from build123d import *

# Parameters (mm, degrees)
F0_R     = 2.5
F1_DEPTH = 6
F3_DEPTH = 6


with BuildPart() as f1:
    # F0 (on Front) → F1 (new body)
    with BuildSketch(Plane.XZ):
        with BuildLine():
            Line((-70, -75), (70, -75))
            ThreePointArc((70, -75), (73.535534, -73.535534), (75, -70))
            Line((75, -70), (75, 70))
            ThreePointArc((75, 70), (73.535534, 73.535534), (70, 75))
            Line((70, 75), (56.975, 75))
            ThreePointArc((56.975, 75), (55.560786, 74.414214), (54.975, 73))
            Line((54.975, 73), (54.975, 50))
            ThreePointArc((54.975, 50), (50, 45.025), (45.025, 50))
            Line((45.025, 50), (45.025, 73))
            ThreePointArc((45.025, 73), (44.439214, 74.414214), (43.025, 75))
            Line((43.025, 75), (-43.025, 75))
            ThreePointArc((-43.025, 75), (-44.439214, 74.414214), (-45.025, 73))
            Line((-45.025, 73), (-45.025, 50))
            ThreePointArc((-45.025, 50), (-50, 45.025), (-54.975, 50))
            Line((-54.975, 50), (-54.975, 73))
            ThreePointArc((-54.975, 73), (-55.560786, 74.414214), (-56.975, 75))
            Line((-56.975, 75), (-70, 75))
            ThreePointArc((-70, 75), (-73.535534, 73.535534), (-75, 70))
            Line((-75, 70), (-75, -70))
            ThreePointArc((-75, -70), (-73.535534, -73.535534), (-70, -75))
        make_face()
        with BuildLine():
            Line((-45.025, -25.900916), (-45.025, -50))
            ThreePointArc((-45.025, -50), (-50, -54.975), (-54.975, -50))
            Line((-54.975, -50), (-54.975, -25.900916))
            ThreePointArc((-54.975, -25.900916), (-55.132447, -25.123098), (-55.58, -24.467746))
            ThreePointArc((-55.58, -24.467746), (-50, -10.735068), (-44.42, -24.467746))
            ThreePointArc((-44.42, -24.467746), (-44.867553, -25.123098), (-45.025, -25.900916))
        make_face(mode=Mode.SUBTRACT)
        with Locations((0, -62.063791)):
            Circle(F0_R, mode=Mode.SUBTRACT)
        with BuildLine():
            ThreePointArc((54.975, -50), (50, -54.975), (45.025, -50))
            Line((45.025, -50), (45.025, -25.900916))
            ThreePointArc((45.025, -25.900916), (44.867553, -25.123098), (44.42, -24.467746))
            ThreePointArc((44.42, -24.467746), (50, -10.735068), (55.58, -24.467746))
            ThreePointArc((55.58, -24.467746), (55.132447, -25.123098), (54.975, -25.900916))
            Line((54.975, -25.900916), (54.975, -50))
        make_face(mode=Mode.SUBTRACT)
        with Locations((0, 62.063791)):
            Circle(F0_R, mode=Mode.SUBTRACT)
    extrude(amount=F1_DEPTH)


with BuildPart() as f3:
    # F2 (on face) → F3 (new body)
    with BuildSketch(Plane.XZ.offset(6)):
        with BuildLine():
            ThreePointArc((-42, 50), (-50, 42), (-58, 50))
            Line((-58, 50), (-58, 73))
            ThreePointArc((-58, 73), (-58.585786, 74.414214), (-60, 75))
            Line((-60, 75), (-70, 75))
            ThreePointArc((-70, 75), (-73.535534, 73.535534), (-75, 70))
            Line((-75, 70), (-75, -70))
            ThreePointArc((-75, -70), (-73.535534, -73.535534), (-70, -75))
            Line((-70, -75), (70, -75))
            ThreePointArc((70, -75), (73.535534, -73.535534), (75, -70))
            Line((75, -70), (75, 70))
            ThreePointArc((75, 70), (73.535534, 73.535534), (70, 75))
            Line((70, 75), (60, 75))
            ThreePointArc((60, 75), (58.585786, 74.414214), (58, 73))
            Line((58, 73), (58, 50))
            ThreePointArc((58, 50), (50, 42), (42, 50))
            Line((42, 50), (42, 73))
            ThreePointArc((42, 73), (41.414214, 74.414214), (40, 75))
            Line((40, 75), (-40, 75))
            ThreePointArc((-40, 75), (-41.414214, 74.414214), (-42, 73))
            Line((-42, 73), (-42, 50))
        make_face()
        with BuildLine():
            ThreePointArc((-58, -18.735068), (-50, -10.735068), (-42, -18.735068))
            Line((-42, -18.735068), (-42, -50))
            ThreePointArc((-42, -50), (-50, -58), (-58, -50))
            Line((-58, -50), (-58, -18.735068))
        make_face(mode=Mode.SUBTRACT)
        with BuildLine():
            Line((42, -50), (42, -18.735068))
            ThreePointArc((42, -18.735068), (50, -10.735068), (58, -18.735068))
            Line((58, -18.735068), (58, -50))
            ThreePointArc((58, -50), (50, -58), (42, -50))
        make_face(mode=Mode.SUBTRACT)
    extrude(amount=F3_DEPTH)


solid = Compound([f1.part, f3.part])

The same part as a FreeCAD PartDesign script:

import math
import FreeCAD as App
import Part
import Sketcher
Q = App.Units.Quantity

doc = App.newDocument("Part")
params = doc.addObject("Spreadsheet::Sheet", "Params")
for row, (alias, value) in enumerate([
    ("sketch1_diameter", "5 mm"),
    ("sketch1_radius", "5 mm"),
    ("sketch1_radius2", "1.999999 mm"),
    ("sketch1_radius3", "8 mm"),
    ("sketch1_width", "140 mm"),
    ("pad1_length", "6 mm"),
    ("sketch2_radius", "8 mm"),
    ("sketch2_radius2", "1.999999 mm"),
    ("sketch2_radius3", "5 mm"),
    ("sketch2_width", "10 mm"),
    ("sketch2_width2", "140 mm"),
    ("pad2_length", "6 mm"),
], start=1):
    params.set(f"A{row}", alias)
    params.set(f"B{row}", "=" + value)
    params.setAlias(f"B{row}", alias)

body = doc.addObject("PartDesign::Body", "Body")

# Sketch on XZ plane
sketch1 = body.newObject("Sketcher::SketchObject", "Sketch")
sketch1.AttachmentSupport = (doc.getObject("XZ_Plane"), [""])
sketch1.MapMode = "FlatFace"
sketch1.addGeometry(Part.LineSegment(App.Vector(-70, -75, 0), App.Vector(70, -75, 0)), False)
sketch1.addGeometry(Part.ArcOfCircle(Part.Circle(App.Vector(70, -70, 0), App.Vector(0, 0, 1), 5), math.radians(-90.000004), math.radians(0.000004)), False)
sketch1.addGeometry(Part.LineSegment(App.Vector(75, -70, 0), App.Vector(75, 70, 0)), False)
sketch1.addGeometry(Part.ArcOfCircle(Part.Circle(App.Vector(70, 70, 0), App.Vector(0, 0, 1), 5), math.radians(-0.000004), math.radians(90.000004)), False)
sketch1.addGeometry(Part.LineSegment(App.Vector(70, 75, 0), App.Vector(56.975, 75, 0)), False)
sketch1.addGeometry(Part.ArcOfCircle(Part.Circle(App.Vector(56.974999, 73.000001, 0), App.Vector(0, 0, 1), 1.999999), math.radians(89.999957), math.radians(180.000043)), False)
sketch1.addGeometry(Part.LineSegment(App.Vector(54.975, 73, 0), App.Vector(54.975, 50, 0)), False)
sketch1.addGeometry(Part.ArcOfCircle(Part.Circle(App.Vector(50, 50, 0), App.Vector(0, 0, 1), 4.975), math.radians(180), math.radians(360)), False)
sketch1.addGeometry(Part.LineSegment(App.Vector(45.025, 50, 0), App.Vector(45.025, 73, 0)), False)
sketch1.addGeometry(Part.ArcOfCircle(Part.Circle(App.Vector(43.025001, 73.000001, 0), App.Vector(0, 0, 1), 1.999999), math.radians(-0.000043), math.radians(90.000043)), False)
sketch1.addGeometry(Part.LineSegment(App.Vector(43.025, 75, 0), App.Vector(-43.025, 75, 0)), False)
sketch1.addGeometry(Part.ArcOfCircle(Part.Circle(App.Vector(-43.025001, 73.000001, 0), App.Vector(0, 0, 1), 1.999999), math.radians(89.999957), math.radians(180.000043)), False)
sketch1.addGeometry(Part.LineSegment(App.Vector(-45.025, 73, 0), App.Vector(-45.025, 50, 0)), False)
sketch1.addGeometry(Part.ArcOfCircle(Part.Circle(App.Vector(-50, 50, 0), App.Vector(0, 0, 1), 4.975), math.radians(180), math.radians(360)), False)
sketch1.addGeometry(Part.LineSegment(App.Vector(-54.975, 50, 0), App.Vector(-54.975, 73, 0)), False)
sketch1.addGeometry(Part.ArcOfCircle(Part.Circle(App.Vector(-56.974999, 73.000001, 0), App.Vector(0, 0, 1), 1.999999), math.radians(-0.000043), math.radians(90.000043)), False)
sketch1.addGeometry(Part.LineSegment(App.Vector(-56.975, 75, 0), App.Vector(-70, 75, 0)), False)
sketch1.addGeometry(Part.ArcOfCircle(Part.Circle(App.Vector(-70, 70, 0), App.Vector(0, 0, 1), 5), math.radians(89.999996), math.radians(180.000004)), False)
sketch1.addGeometry(Part.LineSegment(App.Vector(-75, 70, 0), App.Vector(-75, -70, 0)), False)
sketch1.addGeometry(Part.ArcOfCircle(Part.Circle(App.Vector(-70, -70, 0), App.Vector(0, 0, 1), 5), math.radians(179.999996), math.radians(270.000004)), False)
sketch1.addGeometry(Part.ArcOfCircle(Part.Circle(App.Vector(-43.025005, -25.900913, 0), App.Vector(0, 0, 1), 1.999995), math.radians(134.22671), math.radians(180.000073)), False)
sketch1.addGeometry(Part.LineSegment(App.Vector(-45.025, -25.900916, 0), App.Vector(-45.025, -50, 0)), False)
sketch1.addGeometry(Part.ArcOfCircle(Part.Circle(App.Vector(-50, -50, 0), App.Vector(0, 0, 1), 4.975), math.radians(180), math.radians(360)), False)
sketch1.addGeometry(Part.LineSegment(App.Vector(-54.975, -50, 0), App.Vector(-54.975, -25.900916, 0)), False)
sketch1.addGeometry(Part.ArcOfCircle(Part.Circle(App.Vector(-56.974995, -25.900913, 0), App.Vector(0, 0, 1), 1.999995), math.radians(-0.000073), math.radians(45.77329)), False)
sketch1.addGeometry(Part.ArcOfCircle(Part.Circle(App.Vector(-50, -18.735068, 0), App.Vector(0, 0, 1), 8), math.radians(-45.773228), math.radians(225.773228)), False)
sketch1.addGeometry(Part.Circle(App.Vector(0, -62.063791, 0), App.Vector(0, 0, 1), 2.5), False)
sketch1.addGeometry(Part.LineSegment(App.Vector(54.975, -25.900916, 0), App.Vector(54.975, -50, 0)), False)
sketch1.addGeometry(Part.ArcOfCircle(Part.Circle(App.Vector(50, -50, 0), App.Vector(0, 0, 1), 4.975), math.radians(180), math.radians(360)), False)
sketch1.addGeometry(Part.LineSegment(App.Vector(45.025, -50, 0), App.Vector(45.025, -25.900916, 0)), False)
sketch1.addGeometry(Part.ArcOfCircle(Part.Circle(App.Vector(43.025005, -25.900913, 0), App.Vector(0, 0, 1), 1.999995), math.radians(-0.000073), math.radians(45.77329)), False)
sketch1.addGeometry(Part.ArcOfCircle(Part.Circle(App.Vector(50, -18.735068, 0), App.Vector(0, 0, 1), 8), math.radians(-45.773228), math.radians(225.773228)), False)
sketch1.addGeometry(Part.ArcOfCircle(Part.Circle(App.Vector(56.974995, -25.900913, 0), App.Vector(0, 0, 1), 1.999995), math.radians(134.22671), math.radians(180.000073)), False)
sketch1.addGeometry(Part.Circle(App.Vector(0, 62.063791, 0), App.Vector(0, 0, 1), 2.5), False)
sketch1.addConstraint(Sketcher.Constraint("Tangent", 0, 2, 1, 1))
sketch1.addConstraint(Sketcher.Constraint("Tangent", 1, 2, 2, 1))
sketch1.addConstraint(Sketcher.Constraint("Tangent", 2, 2, 3, 1))
sketch1.addConstraint(Sketcher.Constraint("Tangent", 3, 2, 4, 1))
sketch1.addConstraint(Sketcher.Constraint("Tangent", 4, 2, 5, 1))
sketch1.addConstraint(Sketcher.Constraint("Tangent", 5, 2, 6, 1))
sketch1.addConstraint(Sketcher.Constraint("Tangent", 6, 2, 7, 2))
sketch1.addConstraint(Sketcher.Constraint("Tangent", 7, 1, 8, 1))
sketch1.addConstraint(Sketcher.Constraint("Tangent", 8, 2, 9, 1))
sketch1.addConstraint(Sketcher.Constraint("Tangent", 9, 2, 10, 1))
sketch1.addConstraint(Sketcher.Constraint("Tangent", 10, 2, 11, 1))
sketch1.addConstraint(Sketcher.Constraint("Tangent", 11, 2, 12, 1))
sketch1.addConstraint(Sketcher.Constraint("Tangent", 12, 2, 13, 2))
sketch1.addConstraint(Sketcher.Constraint("Tangent", 13, 1, 14, 1))
sketch1.addConstraint(Sketcher.Constraint("Tangent", 14, 2, 15, 1))
sketch1.addConstraint(Sketcher.Constraint("Tangent", 15, 2, 16, 1))
sketch1.addConstraint(Sketcher.Constraint("Tangent", 16, 2, 17, 1))
sketch1.addConstraint(Sketcher.Constraint("Tangent", 17, 2, 18, 1))
sketch1.addConstraint(Sketcher.Constraint("Tangent", 18, 2, 19, 1))
sketch1.addConstraint(Sketcher.Constraint("Tangent", 19, 2, 0, 1))
sketch1.addConstraint(Sketcher.Constraint("Tangent", 20, 2, 21, 1))
sketch1.addConstraint(Sketcher.Constraint("Tangent", 21, 2, 22, 2))
sketch1.addConstraint(Sketcher.Constraint("Tangent", 22, 1, 23, 1))
sketch1.addConstraint(Sketcher.Constraint("Tangent", 23, 2, 24, 1))
sketch1.addConstraint(Sketcher.Constraint("Tangent", 24, 2, 25, 2))
sketch1.addConstraint(Sketcher.Constraint("Tangent", 25, 1, 20, 1))
sketch1.addConstraint(Sketcher.Constraint("Tangent", 27, 2, 28, 2))
sketch1.addConstraint(Sketcher.Constraint("Tangent", 28, 1, 29, 1))
sketch1.addConstraint(Sketcher.Constraint("Tangent", 29, 2, 30, 1))
sketch1.addConstraint(Sketcher.Constraint("Tangent", 30, 2, 31, 2))
sketch1.addConstraint(Sketcher.Constraint("Tangent", 31, 1, 32, 1))
sketch1.addConstraint(Sketcher.Constraint("Tangent", 32, 2, 27, 1))
sketch1.addConstraint(Sketcher.Constraint("Horizontal", 0))
sketch1.addConstraint(Sketcher.Constraint("Vertical", 2))
sketch1.addConstraint(Sketcher.Constraint("Horizontal", 4))
sketch1.addConstraint(Sketcher.Constraint("Vertical", 6))
sketch1.addConstraint(Sketcher.Constraint("Vertical", 8))
sketch1.addConstraint(Sketcher.Constraint("Horizontal", 10))
sketch1.addConstraint(Sketcher.Constraint("Vertical", 12))
sketch1.addConstraint(Sketcher.Constraint("Vertical", 14))
sketch1.addConstraint(Sketcher.Constraint("Horizontal", 16))
sketch1.addConstraint(Sketcher.Constraint("Vertical", 18))
sketch1.addConstraint(Sketcher.Constraint("Vertical", 21))
sketch1.addConstraint(Sketcher.Constraint("Vertical", 23))
sketch1.addConstraint(Sketcher.Constraint("Vertical", 27))
sketch1.addConstraint(Sketcher.Constraint("Vertical", 29))
sketch1.addConstraint(Sketcher.Constraint("Equal", 1, 3))
sketch1.addConstraint(Sketcher.Constraint("Equal", 5, 9))
sketch1.addConstraint(Sketcher.Constraint("Equal", 9, 11))
sketch1.addConstraint(Sketcher.Constraint("Equal", 7, 13))
sketch1.addConstraint(Sketcher.Constraint("Equal", 11, 15))
sketch1.addConstraint(Sketcher.Constraint("Equal", 3, 17))
sketch1.addConstraint(Sketcher.Constraint("Equal", 17, 19))
sketch1.addConstraint(Sketcher.Constraint("Equal", 13, 22))
sketch1.addConstraint(Sketcher.Constraint("Equal", 20, 24))
sketch1.addConstraint(Sketcher.Constraint("Equal", 22, 28))
sketch1.addConstraint(Sketcher.Constraint("Equal", 24, 30))
sketch1.addConstraint(Sketcher.Constraint("Equal", 25, 31))
sketch1.addConstraint(Sketcher.Constraint("Equal", 30, 32))
sketch1.addConstraint(Sketcher.Constraint("Equal", 26, 33))
sketch1.addConstraint(Sketcher.Constraint("Symmetric", 1, 3, 17, 3, -1, 1))
sketch1.addConstraint(Sketcher.Constraint("Symmetric", 7, 3, 22, 3, -1, 1))
sketch1.addConstraint(Sketcher.Constraint("Symmetric", 13, 3, 28, 3, -1, 1))
sketch1.addConstraint(Sketcher.Constraint("Symmetric", 26, 3, 33, 3, -1, 1))
sketch1.addConstraint(Sketcher.Constraint("Symmetric", 7, 3, 13, 3, -2))
sketch1.addConstraint(Sketcher.Constraint("Symmetric", 25, 3, 31, 3, -2))
sketch1.addConstraint(Sketcher.Constraint("PointOnObject", 26, 3, -2))
sketch1.addConstraint(Sketcher.Constraint("Horizontal", 5, 3, 9, 3))
sketch1.addConstraint(Sketcher.Constraint("Horizontal", 11, 3, 15, 3))
sketch1.addConstraint(Sketcher.Constraint("Horizontal", 20, 3, 24, 3))
sketch1.addConstraint(Sketcher.Constraint("Equal", 0, 2))
sketch1.addConstraint(Sketcher.Constraint("Diameter", 26, Q("5 mm")))
sketch1.addConstraint(Sketcher.Constraint("Radius", 1, Q("5 mm")))
sketch1.addConstraint(Sketcher.Constraint("Radius", 5, Q("1.999999 mm")))
sketch1.addConstraint(Sketcher.Constraint("Radius", 25, Q("8 mm")))
sketch1.addConstraint(Sketcher.Constraint("DistanceX", 0, 1, 0, 2, Q("140 mm")))
sketch1.addConstraint(Sketcher.Constraint("DistanceY", 6, 2, 6, 1, Q("23 mm")))
sketch1.addConstraint(Sketcher.Constraint("DistanceX", -1, 1, 7, 3, Q("50 mm")))
sketch1.addConstraint(Sketcher.Constraint("Radius", 7, Q("4.975 mm")))
sketch1.addConstraint(Sketcher.Constraint("DistanceX", 24, 2, -1, 1, Q("55.58 mm")))
sketch1.addConstraint(Sketcher.Constraint("DistanceY", 21, 2, 21, 1, Q("24.099084 mm")))
sketch1.addConstraint(Sketcher.Constraint("DistanceY", 26, 3, -1, 1, Q("62.063791 mm")))
sketch1.setExpression("Constraints[71]", "Params.sketch1_diameter")
sketch1.setExpression("Constraints[72]", "Params.sketch1_radius")
sketch1.setExpression("Constraints[73]", "Params.sketch1_radius2")
sketch1.setExpression("Constraints[74]", "Params.sketch1_radius3")
sketch1.setExpression("Constraints[75]", "Params.sketch1_width")
pad1 = body.newObject("PartDesign::Pad", "Pad")
pad1.Profile = sketch1
pad1.setExpression("Length", "Params.pad1_length")
body2 = doc.addObject("PartDesign::Body", "Body001")

# Sketch on XZ plane
sketch2 = body2.newObject("Sketcher::SketchObject", "Sketch001")
sketch2.AttachmentSupport = (doc.getObject("XZ_Plane001"), [""])
sketch2.MapMode = "FlatFace"
sketch2.AttachmentOffset = App.Placement(App.Vector(0, 0, 6), App.Rotation())
sketch2.addGeometry(Part.ArcOfCircle(Part.Circle(App.Vector(-50, 50, 0), App.Vector(0, 0, 1), 8), math.radians(180), math.radians(360)), False)
sketch2.addGeometry(Part.LineSegment(App.Vector(-58, 50, 0), App.Vector(-58, 73, 0)), False)
sketch2.addGeometry(Part.ArcOfCircle(Part.Circle(App.Vector(-59.999999, 73.000001, 0), App.Vector(0, 0, 1), 1.999999), math.radians(-0.000043), math.radians(90.000043)), False)
sketch2.addGeometry(Part.LineSegment(App.Vector(-60, 75, 0), App.Vector(-70, 75, 0)), False)
sketch2.addGeometry(Part.ArcOfCircle(Part.Circle(App.Vector(-70, 70, 0), App.Vector(0, 0, 1), 5), math.radians(89.999996), math.radians(180.000004)), False)
sketch2.addGeometry(Part.LineSegment(App.Vector(-75, 70, 0), App.Vector(-75, -70, 0)), False)
sketch2.addGeometry(Part.ArcOfCircle(Part.Circle(App.Vector(-70, -70, 0), App.Vector(0, 0, 1), 5), math.radians(179.999996), math.radians(270.000004)), False)
sketch2.addGeometry(Part.LineSegment(App.Vector(-70, -75, 0), App.Vector(70, -75, 0)), False)
sketch2.addGeometry(Part.ArcOfCircle(Part.Circle(App.Vector(70, -70, 0), App.Vector(0, 0, 1), 5), math.radians(-90.000004), math.radians(0.000004)), False)
sketch2.addGeometry(Part.LineSegment(App.Vector(75, -70, 0), App.Vector(75, 70, 0)), False)
sketch2.addGeometry(Part.ArcOfCircle(Part.Circle(App.Vector(70, 70, 0), App.Vector(0, 0, 1), 5), math.radians(-0.000004), math.radians(90.000004)), False)
sketch2.addGeometry(Part.LineSegment(App.Vector(70, 75, 0), App.Vector(60, 75, 0)), False)
sketch2.addGeometry(Part.ArcOfCircle(Part.Circle(App.Vector(59.999999, 73.000001, 0), App.Vector(0, 0, 1), 1.999999), math.radians(89.999957), math.radians(180.000043)), False)
sketch2.addGeometry(Part.LineSegment(App.Vector(58, 73, 0), App.Vector(58, 50, 0)), False)
sketch2.addGeometry(Part.ArcOfCircle(Part.Circle(App.Vector(50, 50, 0), App.Vector(0, 0, 1), 8), math.radians(180), math.radians(360)), False)
sketch2.addGeometry(Part.LineSegment(App.Vector(42, 50, 0), App.Vector(42, 73, 0)), False)
sketch2.addGeometry(Part.ArcOfCircle(Part.Circle(App.Vector(40.000001, 73.000001, 0), App.Vector(0, 0, 1), 1.999999), math.radians(-0.000043), math.radians(90.000043)), False)
sketch2.addGeometry(Part.LineSegment(App.Vector(40, 75, 0), App.Vector(-40, 75, 0)), False)
sketch2.addGeometry(Part.ArcOfCircle(Part.Circle(App.Vector(-40.000001, 73.000001, 0), App.Vector(0, 0, 1), 1.999999), math.radians(89.999957), math.radians(180.000043)), False)
sketch2.addGeometry(Part.LineSegment(App.Vector(-42, 73, 0), App.Vector(-42, 50, 0)), False)
sketch2.addGeometry(Part.LineSegment(App.Vector(-58, -50, 0), App.Vector(-58, -18.735068, 0)), False)
sketch2.addGeometry(Part.ArcOfCircle(Part.Circle(App.Vector(-50, -18.735068, 0), App.Vector(0, 0, 1), 8), math.radians(0), math.radians(180)), False)
sketch2.addGeometry(Part.LineSegment(App.Vector(-42, -18.735068, 0), App.Vector(-42, -50, 0)), False)
sketch2.addGeometry(Part.ArcOfCircle(Part.Circle(App.Vector(-50, -50, 0), App.Vector(0, 0, 1), 8), math.radians(180), math.radians(360)), False)
sketch2.addGeometry(Part.ArcOfCircle(Part.Circle(App.Vector(50, -50, 0), App.Vector(0, 0, 1), 8), math.radians(180), math.radians(360)), False)
sketch2.addGeometry(Part.LineSegment(App.Vector(42, -50, 0), App.Vector(42, -18.735068, 0)), False)
sketch2.addGeometry(Part.ArcOfCircle(Part.Circle(App.Vector(50, -18.735068, 0), App.Vector(0, 0, 1), 8), math.radians(0), math.radians(180)), False)
sketch2.addGeometry(Part.LineSegment(App.Vector(58, -18.735068, 0), App.Vector(58, -50, 0)), False)
sketch2.addConstraint(Sketcher.Constraint("Tangent", 0, 1, 1, 1))
sketch2.addConstraint(Sketcher.Constraint("Tangent", 1, 2, 2, 1))
sketch2.addConstraint(Sketcher.Constraint("Tangent", 2, 2, 3, 1))
sketch2.addConstraint(Sketcher.Constraint("Tangent", 3, 2, 4, 1))
sketch2.addConstraint(Sketcher.Constraint("Tangent", 4, 2, 5, 1))
sketch2.addConstraint(Sketcher.Constraint("Tangent", 5, 2, 6, 1))
sketch2.addConstraint(Sketcher.Constraint("Tangent", 6, 2, 7, 1))
sketch2.addConstraint(Sketcher.Constraint("Tangent", 7, 2, 8, 1))
sketch2.addConstraint(Sketcher.Constraint("Tangent", 8, 2, 9, 1))
sketch2.addConstraint(Sketcher.Constraint("Tangent", 9, 2, 10, 1))
sketch2.addConstraint(Sketcher.Constraint("Tangent", 10, 2, 11, 1))
sketch2.addConstraint(Sketcher.Constraint("Tangent", 11, 2, 12, 1))
sketch2.addConstraint(Sketcher.Constraint("Tangent", 12, 2, 13, 1))
sketch2.addConstraint(Sketcher.Constraint("Tangent", 13, 2, 14, 2))
sketch2.addConstraint(Sketcher.Constraint("Tangent", 14, 1, 15, 1))
sketch2.addConstraint(Sketcher.Constraint("Tangent", 15, 2, 16, 1))
sketch2.addConstraint(Sketcher.Constraint("Tangent", 16, 2, 17, 1))
sketch2.addConstraint(Sketcher.Constraint("Tangent", 17, 2, 18, 1))
sketch2.addConstraint(Sketcher.Constraint("Tangent", 18, 2, 19, 1))
sketch2.addConstraint(Sketcher.Constraint("Tangent", 19, 2, 0, 2))
sketch2.addConstraint(Sketcher.Constraint("Tangent", 20, 2, 21, 2))
sketch2.addConstraint(Sketcher.Constraint("Tangent", 21, 1, 22, 1))
sketch2.addConstraint(Sketcher.Constraint("Tangent", 22, 2, 23, 2))
sketch2.addConstraint(Sketcher.Constraint("Tangent", 23, 1, 20, 1))
sketch2.addConstraint(Sketcher.Constraint("Tangent", 24, 1, 25, 1))
sketch2.addConstraint(Sketcher.Constraint("Tangent", 25, 2, 26, 2))
sketch2.addConstraint(Sketcher.Constraint("Tangent", 26, 1, 27, 1))
sketch2.addConstraint(Sketcher.Constraint("Tangent", 27, 2, 24, 2))
sketch2.addConstraint(Sketcher.Constraint("Vertical", 1))
sketch2.addConstraint(Sketcher.Constraint("Horizontal", 3))
sketch2.addConstraint(Sketcher.Constraint("Vertical", 5))
sketch2.addConstraint(Sketcher.Constraint("Horizontal", 7))
sketch2.addConstraint(Sketcher.Constraint("Vertical", 9))
sketch2.addConstraint(Sketcher.Constraint("Horizontal", 11))
sketch2.addConstraint(Sketcher.Constraint("Vertical", 13))
sketch2.addConstraint(Sketcher.Constraint("Vertical", 15))
sketch2.addConstraint(Sketcher.Constraint("Horizontal", 17))
sketch2.addConstraint(Sketcher.Constraint("Vertical", 19))
sketch2.addConstraint(Sketcher.Constraint("Vertical", 20))
sketch2.addConstraint(Sketcher.Constraint("Vertical", 22))
sketch2.addConstraint(Sketcher.Constraint("Vertical", 25))
sketch2.addConstraint(Sketcher.Constraint("Vertical", 27))
sketch2.addConstraint(Sketcher.Constraint("Equal", 4, 6))
sketch2.addConstraint(Sketcher.Constraint("Equal", 6, 8))
sketch2.addConstraint(Sketcher.Constraint("Equal", 8, 10))
sketch2.addConstraint(Sketcher.Constraint("Equal", 2, 12))
sketch2.addConstraint(Sketcher.Constraint("Equal", 0, 14))
sketch2.addConstraint(Sketcher.Constraint("Equal", 12, 16))
sketch2.addConstraint(Sketcher.Constraint("Equal", 16, 18))
sketch2.addConstraint(Sketcher.Constraint("Equal", 14, 21))
sketch2.addConstraint(Sketcher.Constraint("Equal", 23, 24))
sketch2.addConstraint(Sketcher.Constraint("Symmetric", 4, 3, 8, 3, -1, 1))
sketch2.addConstraint(Sketcher.Constraint("Symmetric", 14, 3, 23, 3, -1, 1))
sketch2.addConstraint(Sketcher.Constraint("Symmetric", 0, 3, 24, 3, -1, 1))
sketch2.addConstraint(Sketcher.Constraint("Symmetric", 2, 3, 12, 3, -2))
sketch2.addConstraint(Sketcher.Constraint("Horizontal", 0, 3, 14, 3))
sketch2.addConstraint(Sketcher.Constraint("Horizontal", 12, 3, 16, 3))
sketch2.addConstraint(Sketcher.Constraint("Horizontal", 21, 3, 26, 3))
sketch2.addConstraint(Sketcher.Constraint("Equal", 7, 5))
sketch2.addConstraint(Sketcher.Constraint("Radius", 0, Q("8 mm")))
sketch2.addConstraint(Sketcher.Constraint("Radius", 2, Q("1.999999 mm")))
sketch2.addConstraint(Sketcher.Constraint("Radius", 4, Q("5 mm")))
sketch2.addConstraint(Sketcher.Constraint("DistanceX", 3, 2, 3, 1, Q("10 mm")))
sketch2.addConstraint(Sketcher.Constraint("DistanceX", 7, 1, 7, 2, Q("140 mm")))
sketch2.addConstraint(Sketcher.Constraint("DistanceY", 1, 1, 1, 2, Q("23 mm")))
sketch2.addConstraint(Sketcher.Constraint("DistanceY", 20, 1, 20, 2, Q("31.264932 mm")))
sketch2.setExpression("Constraints[59]", "Params.sketch2_radius")
sketch2.setExpression("Constraints[60]", "Params.sketch2_radius2")
sketch2.setExpression("Constraints[61]", "Params.sketch2_radius3")
sketch2.setExpression("Constraints[62]", "Params.sketch2_width")
sketch2.setExpression("Constraints[63]", "Params.sketch2_width2")
pad2 = body2.newObject("PartDesign::Pad", "Pad001")
pad2.Profile = sketch2
pad2.setExpression("Length", "Params.pad2_length")

doc.recompute()
